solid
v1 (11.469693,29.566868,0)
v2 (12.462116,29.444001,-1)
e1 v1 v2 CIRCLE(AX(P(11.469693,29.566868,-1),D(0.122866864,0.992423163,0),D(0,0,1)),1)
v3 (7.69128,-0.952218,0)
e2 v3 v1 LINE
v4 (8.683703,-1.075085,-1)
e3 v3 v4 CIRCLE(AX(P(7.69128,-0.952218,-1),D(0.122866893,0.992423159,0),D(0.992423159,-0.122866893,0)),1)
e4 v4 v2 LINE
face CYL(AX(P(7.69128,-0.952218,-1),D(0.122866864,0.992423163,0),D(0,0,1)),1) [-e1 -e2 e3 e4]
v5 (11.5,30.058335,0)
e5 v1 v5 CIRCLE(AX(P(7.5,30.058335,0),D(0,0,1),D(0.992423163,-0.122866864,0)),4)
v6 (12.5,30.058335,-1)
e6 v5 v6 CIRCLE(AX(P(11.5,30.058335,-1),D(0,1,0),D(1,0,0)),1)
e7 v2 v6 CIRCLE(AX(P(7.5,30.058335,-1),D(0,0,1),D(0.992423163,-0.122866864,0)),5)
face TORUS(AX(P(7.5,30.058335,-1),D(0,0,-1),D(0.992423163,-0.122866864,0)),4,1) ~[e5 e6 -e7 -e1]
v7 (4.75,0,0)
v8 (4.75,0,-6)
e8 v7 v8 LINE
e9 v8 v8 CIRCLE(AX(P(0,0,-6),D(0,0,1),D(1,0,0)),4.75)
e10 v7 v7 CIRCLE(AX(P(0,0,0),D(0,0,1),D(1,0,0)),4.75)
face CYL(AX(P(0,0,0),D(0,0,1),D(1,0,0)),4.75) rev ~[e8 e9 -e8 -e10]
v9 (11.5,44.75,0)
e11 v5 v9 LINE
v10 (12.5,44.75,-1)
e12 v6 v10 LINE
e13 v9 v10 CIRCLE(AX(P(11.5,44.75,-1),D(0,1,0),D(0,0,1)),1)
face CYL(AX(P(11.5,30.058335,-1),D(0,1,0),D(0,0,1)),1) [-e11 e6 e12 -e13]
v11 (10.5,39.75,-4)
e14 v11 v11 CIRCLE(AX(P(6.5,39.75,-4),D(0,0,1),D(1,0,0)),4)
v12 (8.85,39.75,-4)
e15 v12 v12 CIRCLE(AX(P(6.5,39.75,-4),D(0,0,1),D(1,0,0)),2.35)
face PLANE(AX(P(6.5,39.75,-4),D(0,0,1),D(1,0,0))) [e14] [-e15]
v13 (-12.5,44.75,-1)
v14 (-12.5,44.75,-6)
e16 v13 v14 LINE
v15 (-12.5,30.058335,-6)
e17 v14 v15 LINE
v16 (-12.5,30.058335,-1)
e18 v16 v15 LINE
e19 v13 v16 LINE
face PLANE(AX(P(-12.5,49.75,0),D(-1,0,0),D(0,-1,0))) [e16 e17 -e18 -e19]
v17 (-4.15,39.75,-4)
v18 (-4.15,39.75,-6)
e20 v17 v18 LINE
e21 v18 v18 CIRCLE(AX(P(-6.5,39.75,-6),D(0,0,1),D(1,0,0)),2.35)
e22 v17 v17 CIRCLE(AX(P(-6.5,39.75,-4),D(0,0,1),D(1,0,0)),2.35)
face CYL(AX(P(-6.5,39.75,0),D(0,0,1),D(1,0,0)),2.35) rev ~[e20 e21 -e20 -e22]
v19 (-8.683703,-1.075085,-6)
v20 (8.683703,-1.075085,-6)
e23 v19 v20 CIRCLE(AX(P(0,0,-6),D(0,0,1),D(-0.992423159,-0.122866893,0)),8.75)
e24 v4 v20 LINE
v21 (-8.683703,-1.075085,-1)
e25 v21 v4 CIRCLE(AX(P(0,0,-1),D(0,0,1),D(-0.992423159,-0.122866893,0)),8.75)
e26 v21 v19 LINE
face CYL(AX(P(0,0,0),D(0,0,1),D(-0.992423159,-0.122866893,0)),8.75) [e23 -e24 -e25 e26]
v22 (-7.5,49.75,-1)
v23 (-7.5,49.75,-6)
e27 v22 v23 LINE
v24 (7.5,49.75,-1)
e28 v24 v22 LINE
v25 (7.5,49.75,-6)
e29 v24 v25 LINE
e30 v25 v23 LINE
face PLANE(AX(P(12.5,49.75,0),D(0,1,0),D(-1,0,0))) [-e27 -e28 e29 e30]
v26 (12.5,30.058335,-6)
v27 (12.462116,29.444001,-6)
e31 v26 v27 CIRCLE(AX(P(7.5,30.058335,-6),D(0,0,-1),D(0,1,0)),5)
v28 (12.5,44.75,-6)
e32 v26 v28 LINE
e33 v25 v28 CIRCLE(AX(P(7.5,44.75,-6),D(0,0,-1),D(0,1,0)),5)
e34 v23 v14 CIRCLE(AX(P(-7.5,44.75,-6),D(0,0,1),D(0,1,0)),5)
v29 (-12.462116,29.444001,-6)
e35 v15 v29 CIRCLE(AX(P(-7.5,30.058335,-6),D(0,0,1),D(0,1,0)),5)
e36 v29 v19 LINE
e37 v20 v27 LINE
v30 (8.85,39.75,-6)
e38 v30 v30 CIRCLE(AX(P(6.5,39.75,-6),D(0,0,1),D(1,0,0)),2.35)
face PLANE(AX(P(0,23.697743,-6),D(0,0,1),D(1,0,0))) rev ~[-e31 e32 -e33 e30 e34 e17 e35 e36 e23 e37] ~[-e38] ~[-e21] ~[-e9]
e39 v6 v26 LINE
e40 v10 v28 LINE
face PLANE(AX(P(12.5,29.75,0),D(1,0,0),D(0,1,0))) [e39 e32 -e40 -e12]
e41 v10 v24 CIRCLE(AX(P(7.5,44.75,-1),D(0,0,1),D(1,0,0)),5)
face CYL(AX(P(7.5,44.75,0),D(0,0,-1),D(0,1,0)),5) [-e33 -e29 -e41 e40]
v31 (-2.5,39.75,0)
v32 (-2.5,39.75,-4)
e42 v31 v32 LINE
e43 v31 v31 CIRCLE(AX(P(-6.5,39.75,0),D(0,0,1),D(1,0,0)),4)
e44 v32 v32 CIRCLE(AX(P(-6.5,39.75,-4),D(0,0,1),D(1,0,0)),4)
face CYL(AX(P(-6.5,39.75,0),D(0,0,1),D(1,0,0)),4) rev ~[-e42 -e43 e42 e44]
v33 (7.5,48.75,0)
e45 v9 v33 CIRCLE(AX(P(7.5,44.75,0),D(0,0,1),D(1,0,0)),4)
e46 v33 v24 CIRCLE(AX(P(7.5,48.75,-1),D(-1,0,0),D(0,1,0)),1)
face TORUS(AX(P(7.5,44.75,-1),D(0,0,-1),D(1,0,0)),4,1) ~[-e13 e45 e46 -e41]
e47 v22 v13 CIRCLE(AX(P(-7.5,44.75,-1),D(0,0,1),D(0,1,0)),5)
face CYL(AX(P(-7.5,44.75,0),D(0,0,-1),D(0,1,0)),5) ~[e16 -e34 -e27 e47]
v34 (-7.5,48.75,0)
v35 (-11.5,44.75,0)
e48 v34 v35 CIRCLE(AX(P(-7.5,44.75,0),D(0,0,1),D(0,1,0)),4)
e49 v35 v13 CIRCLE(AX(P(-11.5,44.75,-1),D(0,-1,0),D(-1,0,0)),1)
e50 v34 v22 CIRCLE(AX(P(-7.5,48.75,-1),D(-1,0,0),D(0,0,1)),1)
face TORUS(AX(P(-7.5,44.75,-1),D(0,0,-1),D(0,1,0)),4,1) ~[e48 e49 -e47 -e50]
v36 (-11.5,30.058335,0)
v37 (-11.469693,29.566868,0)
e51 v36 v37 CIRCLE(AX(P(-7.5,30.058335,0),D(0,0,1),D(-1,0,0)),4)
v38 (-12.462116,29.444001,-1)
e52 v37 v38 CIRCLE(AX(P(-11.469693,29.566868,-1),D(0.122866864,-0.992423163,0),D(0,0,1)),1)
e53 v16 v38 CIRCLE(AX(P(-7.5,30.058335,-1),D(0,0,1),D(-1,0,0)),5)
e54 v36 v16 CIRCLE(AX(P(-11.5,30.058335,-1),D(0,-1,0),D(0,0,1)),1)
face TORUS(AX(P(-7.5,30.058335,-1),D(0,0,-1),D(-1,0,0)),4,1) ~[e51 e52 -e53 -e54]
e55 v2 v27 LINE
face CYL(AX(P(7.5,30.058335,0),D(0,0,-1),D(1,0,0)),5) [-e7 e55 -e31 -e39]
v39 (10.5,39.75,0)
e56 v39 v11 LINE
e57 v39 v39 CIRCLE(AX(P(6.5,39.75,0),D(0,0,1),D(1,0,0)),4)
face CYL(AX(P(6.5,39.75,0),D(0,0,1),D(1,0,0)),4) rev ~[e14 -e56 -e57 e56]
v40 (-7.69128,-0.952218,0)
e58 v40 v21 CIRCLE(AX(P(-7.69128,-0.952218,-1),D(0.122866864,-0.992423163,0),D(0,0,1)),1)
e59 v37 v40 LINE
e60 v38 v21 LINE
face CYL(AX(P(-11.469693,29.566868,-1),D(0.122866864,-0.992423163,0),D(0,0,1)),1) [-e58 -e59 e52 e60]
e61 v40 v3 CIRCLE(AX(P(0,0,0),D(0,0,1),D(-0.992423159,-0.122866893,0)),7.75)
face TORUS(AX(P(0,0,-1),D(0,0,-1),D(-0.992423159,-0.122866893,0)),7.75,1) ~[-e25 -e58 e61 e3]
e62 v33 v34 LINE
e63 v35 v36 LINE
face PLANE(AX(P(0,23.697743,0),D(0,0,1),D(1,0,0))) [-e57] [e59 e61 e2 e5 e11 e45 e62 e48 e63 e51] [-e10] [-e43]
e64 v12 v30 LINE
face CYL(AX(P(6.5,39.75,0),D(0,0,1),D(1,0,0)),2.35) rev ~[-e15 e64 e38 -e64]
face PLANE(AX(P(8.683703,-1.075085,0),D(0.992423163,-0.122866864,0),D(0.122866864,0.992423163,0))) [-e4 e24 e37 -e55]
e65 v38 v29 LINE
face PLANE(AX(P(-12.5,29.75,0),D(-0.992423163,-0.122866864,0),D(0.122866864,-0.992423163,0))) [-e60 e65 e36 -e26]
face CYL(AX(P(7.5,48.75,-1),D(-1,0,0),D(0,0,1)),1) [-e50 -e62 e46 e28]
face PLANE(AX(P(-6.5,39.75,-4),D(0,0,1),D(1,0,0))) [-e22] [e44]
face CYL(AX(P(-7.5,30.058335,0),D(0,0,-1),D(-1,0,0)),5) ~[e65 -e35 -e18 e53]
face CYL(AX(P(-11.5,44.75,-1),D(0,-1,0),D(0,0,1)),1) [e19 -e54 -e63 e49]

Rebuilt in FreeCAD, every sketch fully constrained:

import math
import FreeCAD as App
import Part
import Sketcher
from FreeCAD import Vector
Q = App.Units.Quantity


def edges_at(feature, points):
    """Names of the edges that pass closest to the given points."""
    edges = feature.Shape.Edges
    near = lambda p: min(range(len(edges)), key=lambda i: edges[i].distToShape(Part.Vertex(*p))[0])
    return sorted({f"Edge{near(p) + 1}" for p in points})

doc = App.newDocument("Part")
body = doc.addObject("PartDesign::Body", "Body")

sketch1 = doc.addObject("Sketcher::SketchObject", "Sketch")
body.addObject(sketch1)
sketch1.AttachmentSupport = (doc.XY_Plane, [""])
sketch1.MapMode = "FlatFace"
sketch1.addGeometry([
    Part.LineSegment(Vector(12.5, 49.75, 0), Vector(-12.5, 49.75, 0)),
    Part.LineSegment(Vector(-12.5, 49.75, 0), Vector(-12.5, 29.75, 0)),
    Part.LineSegment(Vector(-12.5, 29.75, 0), Vector(-8.683703, -1.075085, 0)),
    Part.ArcOfCircle(Part.Circle(Vector(0, 0, 0), Vector(0, 0, 1), 8.75), math.radians(-172.942412), math.radians(-7.057588)),
    Part.LineSegment(Vector(8.683703, -1.075085, 0), Vector(12.5, 29.75, 0)),
    Part.LineSegment(Vector(12.5, 29.75, 0), Vector(12.5, 49.75, 0)),
    Part.Circle(Vector(0, 0, 0), Vector(0, 0, 1), 4.75),
    Part.Circle(Vector(-6.5, 39.75, 0), Vector(0, 0, 1), 2.35),
    Part.Circle(Vector(6.5, 39.75, 0), Vector(0, 0, 1), 2.35),
], False)
sketch1.addConstraint([
    Sketcher.Constraint("Coincident", 0, 2, 1, 1),
    Sketcher.Constraint("Coincident", 1, 2, 2, 1),
    Sketcher.Constraint("Tangent", 2, 2, 3, 1),
    Sketcher.Constraint("Tangent", 3, 2, 4, 1),
    Sketcher.Constraint("Coincident", 4, 2, 5, 1),
    Sketcher.Constraint("Coincident", 5, 2, 0, 1),
    Sketcher.Constraint("Horizontal", 0),
    Sketcher.Constraint("Vertical", 1),
    Sketcher.Constraint("Vertical", 5),
    Sketcher.Constraint("Coincident", 3, 3, -1, 1),
    Sketcher.Constraint("Coincident", 6, 3, -1, 1),
    Sketcher.Constraint("Equal", 7, 8),
    Sketcher.Constraint("Symmetric", 7, 3, 8, 3, -2),
    Sketcher.Constraint("Symmetric", 1, 2, 4, 2, -2),
    Sketcher.Constraint("Diameter", 6, Q("9.5 mm")),
    Sketcher.Constraint("Diameter", 7, Q("4.7 mm")),
    Sketcher.Constraint("DistanceX", 0, 2, 0, 1, Q("25 mm")),
    Sketcher.Constraint("DistanceY", 1, 2, 1, 1, Q("20 mm")),
    Sketcher.Constraint("Radius", 3, Q("8.75 mm")),
    Sketcher.Constraint("DistanceX", 7, 3, 8, 3, Q("13 mm")),
    Sketcher.Constraint("DistanceY", 7, 3, 0, 2, Q("10 mm")),
    Sketcher.Constraint("DistanceY", -1, 1, 7, 3, Q("39.75 mm")),
])
pad1 = doc.addObject("PartDesign::Pad", "Pad")
body.addObject(pad1)
pad1.Profile = sketch1
pad1.Length = 6
pad1.Reversed = True

sketch2 = doc.addObject("Sketcher::SketchObject", "Sketch001")
body.addObject(sketch2)
sketch2.AttachmentSupport = (doc.XY_Plane, [""])
sketch2.MapMode = "FlatFace"
sketch2.addGeometry([
    Part.Circle(Vector(-6.5, 39.75, 0), Vector(0, 0, 1), 4),
    Part.Circle(Vector(-6.5, 39.75, 0), Vector(0, 0, 1), 2.35),
    Part.Circle(Vector(6.5, 39.75, 0), Vector(0, 0, 1), 4),
    Part.Circle(Vector(6.5, 39.75, 0), Vector(0, 0, 1), 2.35),
], False)
sketch2.addConstraint([
    Sketcher.Constraint("Coincident", 1, 3, 0, 3),
    Sketcher.Constraint("Coincident", 3, 3, 2, 3),
    Sketcher.Constraint("Equal", 0, 2),
    Sketcher.Constraint("Equal", 1, 3),
    Sketcher.Constraint("Symmetric", 0, 3, 2, 3, -2),
    Sketcher.Constraint("Diameter", 0, Q("8 mm")),
    Sketcher.Constraint("Diameter", 1, Q("4.7 mm")),
    Sketcher.Constraint("DistanceX", 0, 3, 2, 3, Q("13 mm")),
    Sketcher.Constraint("DistanceY", -1, 1, 0, 3, Q("39.75 mm")),
])
pocket1 = doc.addObject("PartDesign::Pocket", "Pocket")
body.addObject(pocket1)
pocket1.Profile = sketch2
pocket1.Length = 4
doc.recompute()

fillet = doc.addObject("PartDesign::Fillet", "Fillet")
body.addObject(fillet)
fillet.Base = (pocket1, edges_at(pocket1, [
    (-12.5, 49.75, -3),
    (12.5, 49.75, -3),
    (-12.5, 29.75, -3),
    (12.5, 29.75, -3),
]))
fillet.Radius = 5
doc.recompute()

fillet2 = doc.addObject("PartDesign::Fillet", "Fillet001")
body.addObject(fillet2)
fillet2.Base = (fillet, edges_at(fillet, [(-10.573, 14.184, 0)]))
fillet2.Radius = 1

doc.recompute()
